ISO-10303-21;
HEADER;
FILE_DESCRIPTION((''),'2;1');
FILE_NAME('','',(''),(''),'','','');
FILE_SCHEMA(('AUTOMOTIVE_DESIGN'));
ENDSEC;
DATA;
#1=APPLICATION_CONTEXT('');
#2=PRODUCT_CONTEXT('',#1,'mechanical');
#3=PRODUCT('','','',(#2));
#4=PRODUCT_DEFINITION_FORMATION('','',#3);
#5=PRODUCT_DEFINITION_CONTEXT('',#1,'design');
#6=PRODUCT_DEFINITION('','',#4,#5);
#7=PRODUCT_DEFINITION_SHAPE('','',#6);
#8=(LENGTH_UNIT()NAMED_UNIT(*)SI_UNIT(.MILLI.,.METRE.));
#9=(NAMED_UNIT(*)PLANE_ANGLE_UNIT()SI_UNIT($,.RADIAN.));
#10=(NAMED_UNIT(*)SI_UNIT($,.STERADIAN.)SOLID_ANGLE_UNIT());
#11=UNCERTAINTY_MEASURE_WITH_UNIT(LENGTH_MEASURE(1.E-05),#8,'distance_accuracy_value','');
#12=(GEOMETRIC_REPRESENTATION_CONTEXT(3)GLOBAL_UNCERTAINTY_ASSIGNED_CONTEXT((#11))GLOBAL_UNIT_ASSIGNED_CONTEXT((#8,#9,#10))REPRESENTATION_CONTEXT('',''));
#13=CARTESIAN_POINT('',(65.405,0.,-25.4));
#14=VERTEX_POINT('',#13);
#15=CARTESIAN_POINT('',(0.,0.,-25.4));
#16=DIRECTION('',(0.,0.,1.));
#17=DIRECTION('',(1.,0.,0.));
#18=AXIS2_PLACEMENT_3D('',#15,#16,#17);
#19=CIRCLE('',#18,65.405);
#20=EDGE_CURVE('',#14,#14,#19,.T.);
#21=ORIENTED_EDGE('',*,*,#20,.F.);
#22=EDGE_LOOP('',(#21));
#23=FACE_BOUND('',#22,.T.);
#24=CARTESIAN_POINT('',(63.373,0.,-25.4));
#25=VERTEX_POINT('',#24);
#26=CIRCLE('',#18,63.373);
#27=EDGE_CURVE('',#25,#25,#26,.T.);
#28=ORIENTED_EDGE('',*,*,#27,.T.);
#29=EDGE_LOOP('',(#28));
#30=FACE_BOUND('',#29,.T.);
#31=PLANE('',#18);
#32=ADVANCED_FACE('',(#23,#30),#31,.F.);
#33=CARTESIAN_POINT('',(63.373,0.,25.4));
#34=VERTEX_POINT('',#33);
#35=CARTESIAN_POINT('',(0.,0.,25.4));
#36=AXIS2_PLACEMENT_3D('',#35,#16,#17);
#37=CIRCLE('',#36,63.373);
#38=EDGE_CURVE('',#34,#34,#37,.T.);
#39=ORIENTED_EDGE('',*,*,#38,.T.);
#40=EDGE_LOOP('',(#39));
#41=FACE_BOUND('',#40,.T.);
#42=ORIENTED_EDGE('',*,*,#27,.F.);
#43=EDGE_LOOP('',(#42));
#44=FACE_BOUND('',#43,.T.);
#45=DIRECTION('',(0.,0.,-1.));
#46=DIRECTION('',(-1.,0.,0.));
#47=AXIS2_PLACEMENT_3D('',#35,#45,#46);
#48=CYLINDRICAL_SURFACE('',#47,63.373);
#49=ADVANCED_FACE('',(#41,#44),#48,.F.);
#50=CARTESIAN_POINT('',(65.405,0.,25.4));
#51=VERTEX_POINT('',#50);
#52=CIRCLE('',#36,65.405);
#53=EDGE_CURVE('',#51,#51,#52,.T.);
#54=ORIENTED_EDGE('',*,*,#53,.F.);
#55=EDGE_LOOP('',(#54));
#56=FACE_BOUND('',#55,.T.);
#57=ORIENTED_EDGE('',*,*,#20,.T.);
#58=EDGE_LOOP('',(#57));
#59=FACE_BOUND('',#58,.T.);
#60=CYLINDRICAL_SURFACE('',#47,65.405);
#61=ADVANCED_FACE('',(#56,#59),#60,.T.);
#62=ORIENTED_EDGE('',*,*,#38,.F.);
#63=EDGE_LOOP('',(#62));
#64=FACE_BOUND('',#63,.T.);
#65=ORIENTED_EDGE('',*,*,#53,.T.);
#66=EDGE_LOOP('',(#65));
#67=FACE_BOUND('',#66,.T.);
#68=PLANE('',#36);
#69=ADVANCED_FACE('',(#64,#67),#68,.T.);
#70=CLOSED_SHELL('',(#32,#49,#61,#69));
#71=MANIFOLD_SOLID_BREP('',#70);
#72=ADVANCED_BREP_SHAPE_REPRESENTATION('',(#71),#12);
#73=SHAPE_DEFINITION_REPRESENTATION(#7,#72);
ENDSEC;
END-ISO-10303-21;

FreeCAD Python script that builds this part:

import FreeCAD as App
import Part
import Sketcher

V = App.Vector
Q = App.Units.Quantity

doc = App.newDocument("Part")
body = doc.addObject("PartDesign::Body", "Body")

# Sketch on XY plane
sketch1 = body.newObject("Sketcher::SketchObject", "Sketch")
sketch1.AttachmentSupport = (doc.getObject("XY_Plane"), [""])
sketch1.MapMode = "FlatFace"
sketch1.addGeometry([
    Part.Circle(V(0, 0, 0), V(0, 0, 1), 65.405),
    Part.Circle(V(0, 0, 0), V(0, 0, 1), 63.373),
], False)
sketch1.addConstraint([
    Sketcher.Constraint("Coincident", 0, 3, -1, 1),
    Sketcher.Constraint("Coincident", 1, 3, -1, 1),
    Sketcher.Constraint("Diameter", 0, Q("5.15 in")),
    Sketcher.Constraint("Diameter", 1, Q("4.99 in")),
])
pad1 = body.newObject("PartDesign::Pad", "Pad")
pad1.Profile = sketch1
pad1.Length = Q("2 in")
pad1.Midplane = True

doc.recompute()
